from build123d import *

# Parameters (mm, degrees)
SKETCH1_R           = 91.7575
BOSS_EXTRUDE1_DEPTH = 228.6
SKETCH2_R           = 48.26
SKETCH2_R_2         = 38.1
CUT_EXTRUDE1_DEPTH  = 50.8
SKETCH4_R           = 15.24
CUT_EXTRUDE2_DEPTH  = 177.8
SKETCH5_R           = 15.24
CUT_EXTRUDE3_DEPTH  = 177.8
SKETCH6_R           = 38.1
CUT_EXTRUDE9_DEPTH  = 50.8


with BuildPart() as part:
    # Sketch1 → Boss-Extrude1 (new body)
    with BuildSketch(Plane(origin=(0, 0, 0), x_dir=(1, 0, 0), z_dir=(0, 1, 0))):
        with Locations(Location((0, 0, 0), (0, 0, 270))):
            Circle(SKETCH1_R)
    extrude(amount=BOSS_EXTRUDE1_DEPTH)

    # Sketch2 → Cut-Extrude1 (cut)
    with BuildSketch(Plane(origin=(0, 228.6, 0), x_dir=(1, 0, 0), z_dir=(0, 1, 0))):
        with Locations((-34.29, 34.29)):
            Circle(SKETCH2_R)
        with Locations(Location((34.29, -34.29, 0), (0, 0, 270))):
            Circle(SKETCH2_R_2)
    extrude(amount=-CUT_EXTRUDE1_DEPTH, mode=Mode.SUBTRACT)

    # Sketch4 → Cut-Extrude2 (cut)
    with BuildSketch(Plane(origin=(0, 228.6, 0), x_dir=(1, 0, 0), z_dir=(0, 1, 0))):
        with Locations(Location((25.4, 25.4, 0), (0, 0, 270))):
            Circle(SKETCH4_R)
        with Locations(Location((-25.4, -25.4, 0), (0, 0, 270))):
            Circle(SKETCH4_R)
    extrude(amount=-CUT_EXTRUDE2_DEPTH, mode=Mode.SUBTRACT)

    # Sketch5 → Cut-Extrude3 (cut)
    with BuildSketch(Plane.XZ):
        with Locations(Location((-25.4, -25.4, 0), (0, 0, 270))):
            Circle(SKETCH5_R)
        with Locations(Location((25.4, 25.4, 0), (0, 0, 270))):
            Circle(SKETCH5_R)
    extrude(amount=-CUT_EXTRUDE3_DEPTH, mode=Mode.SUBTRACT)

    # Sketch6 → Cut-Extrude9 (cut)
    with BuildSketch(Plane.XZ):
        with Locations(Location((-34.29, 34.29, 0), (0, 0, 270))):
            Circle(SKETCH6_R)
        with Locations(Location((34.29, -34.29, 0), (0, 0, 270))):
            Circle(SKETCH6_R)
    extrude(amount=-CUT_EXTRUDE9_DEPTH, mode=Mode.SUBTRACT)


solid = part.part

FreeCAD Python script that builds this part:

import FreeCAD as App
import Part
import Sketcher
from FreeCAD import Vector
Q = App.Units.Quantity

doc = App.newDocument("Part")
body = doc.addObject("PartDesign::Body", "Body")

sketch1 = doc.addObject("Sketcher::SketchObject", "Sketch")
body.addObject(sketch1)
sketch1.AttachmentSupport = (doc.XZ_Plane, [""])
sketch1.MapMode = "FlatFace"
sketch1.addGeometry(Part.Circle(Vector(0, 0, 0), Vector(0, 0, 1), 92), False)
sketch1.addConstraint([
    Sketcher.Constraint("Coincident", 0, 3, -1, 1),
    Sketcher.Constraint("Diameter", 0, Q("7.225 in")),
])
pad1 = doc.addObject("PartDesign::Pad", "Pad")
body.addObject(pad1)
pad1.Profile = sketch1
pad1.Length = Q("9 in")
pad1.Reversed = True

sketch2 = doc.addObject("Sketcher::SketchObject", "Sketch001")
body.addObject(sketch2)
sketch2.AttachmentSupport = (doc.XZ_Plane, [""])
sketch2.MapMode = "FlatFace"
sketch2.AttachmentOffset = App.Placement(Vector(0, 0, -9 * 25.4), App.Rotation())
sketch2.addGeometry([
    Part.Circle(Vector(-34, -34, 0), Vector(0, 0, 1), 48),
    Part.Circle(Vector(34, 34, 0), Vector(0, 0, 1), 38),
], False)
sketch2.addConstraint([
    Sketcher.Constraint("Symmetric", 0, 3, 1, 3, -1, 1),
    Sketcher.Constraint("Diameter", 1, Q("3 in")),
    Sketcher.Constraint("Diameter", 0, Q("3.8 in")),
    Sketcher.Constraint("DistanceX", 0, 3, 1, 3, Q("2.7 in")),
    Sketcher.Constraint("DistanceY", 0, 3, 1, 3, Q("2.7 in")),
])
pocket1 = doc.addObject("PartDesign::Pocket", "Pocket")
body.addObject(pocket1)
pocket1.Profile = sketch2
pocket1.Length = Q("2 in")
pocket1.Reversed = True

sketch3 = doc.addObject("Sketcher::SketchObject", "Sketch002")
body.addObject(sketch3)
sketch3.AttachmentSupport = (doc.XZ_Plane, [""])
sketch3.MapMode = "FlatFace"
sketch3.AttachmentOffset = App.Placement(Vector(0, 0, -9 * 25.4), App.Rotation())
sketch3.addGeometry([
    Part.Circle(Vector(25, -25, 0), Vector(0, 0, 1), 15),
    Part.Circle(Vector(-25, 25, 0), Vector(0, 0, 1), 15),
], False)
sketch3.addConstraint([
    Sketcher.Constraint("Equal", 0, 1),
    Sketcher.Constraint("Symmetric", 0, 3, 1, 3, -1, 1),
    Sketcher.Constraint("Diameter", 0, Q("1.2 in")),
    Sketcher.Constraint("DistanceX", -1, 1, 0, 3, Q("1 in")),
    Sketcher.Constraint("DistanceY", 0, 3, -1, 1, Q("1 in")),
])
pocket2 = doc.addObject("PartDesign::Pocket", "Pocket001")
body.addObject(pocket2)
pocket2.Profile = sketch3
pocket2.Length = Q("7 in")
pocket2.Reversed = True

sketch4 = doc.addObject("Sketcher::SketchObject", "Sketch003")
body.addObject(sketch4)
sketch4.AttachmentSupport = (doc.XZ_Plane, [""])
sketch4.MapMode = "FlatFace"
sketch4.addGeometry([
    Part.Circle(Vector(-25, -25, 0), Vector(0, 0, 1), 15),
    Part.Circle(Vector(25, 25, 0), Vector(0, 0, 1), 15),
], False)
sketch4.addConstraint([
    Sketcher.Constraint("Equal", 0, 1),
    Sketcher.Constraint("Symmetric", 0, 3, 1, 3, -1, 1),
    Sketcher.Constraint("Diameter", 0, Q("1.2 in")),
    Sketcher.Constraint("DistanceX", 0, 3, -1, 1, Q("1 in")),
    Sketcher.Constraint("DistanceY", 0, 3, -1, 1, Q("1 in")),
])
pocket3 = doc.addObject("PartDesign::Pocket", "Pocket002")
body.addObject(pocket3)
pocket3.Profile = sketch4
pocket3.Length = Q("7 in")

sketch5 = doc.addObject("Sketcher::SketchObject", "Sketch004")
body.addObject(sketch5)
sketch5.AttachmentSupport = (doc.XZ_Plane, [""])
sketch5.MapMode = "FlatFace"
sketch5.addGeometry([
    Part.Circle(Vector(-34, 34, 0), Vector(0, 0, 1), 38),
    Part.Circle(Vector(34, -34, 0), Vector(0, 0, 1), 38),
], False)
sketch5.addConstraint([
    Sketcher.Constraint("Equal", 0, 1),
    Sketcher.Constraint("Symmetric", 0, 3, 1, 3, -1, 1),
    Sketcher.Constraint("Diameter", 0, Q("3 in")),
    Sketcher.Constraint("DistanceX", 0, 3, 1, 3, Q("2.7 in")),
    Sketcher.Constraint("DistanceY", 1, 3, 0, 3, Q("2.7 in")),
])
pocket4 = doc.addObject("PartDesign::Pocket", "Pocket003")
body.addObject(pocket4)
pocket4.Profile = sketch5
pocket4.Length = Q("2 in")

doc.recompute()
